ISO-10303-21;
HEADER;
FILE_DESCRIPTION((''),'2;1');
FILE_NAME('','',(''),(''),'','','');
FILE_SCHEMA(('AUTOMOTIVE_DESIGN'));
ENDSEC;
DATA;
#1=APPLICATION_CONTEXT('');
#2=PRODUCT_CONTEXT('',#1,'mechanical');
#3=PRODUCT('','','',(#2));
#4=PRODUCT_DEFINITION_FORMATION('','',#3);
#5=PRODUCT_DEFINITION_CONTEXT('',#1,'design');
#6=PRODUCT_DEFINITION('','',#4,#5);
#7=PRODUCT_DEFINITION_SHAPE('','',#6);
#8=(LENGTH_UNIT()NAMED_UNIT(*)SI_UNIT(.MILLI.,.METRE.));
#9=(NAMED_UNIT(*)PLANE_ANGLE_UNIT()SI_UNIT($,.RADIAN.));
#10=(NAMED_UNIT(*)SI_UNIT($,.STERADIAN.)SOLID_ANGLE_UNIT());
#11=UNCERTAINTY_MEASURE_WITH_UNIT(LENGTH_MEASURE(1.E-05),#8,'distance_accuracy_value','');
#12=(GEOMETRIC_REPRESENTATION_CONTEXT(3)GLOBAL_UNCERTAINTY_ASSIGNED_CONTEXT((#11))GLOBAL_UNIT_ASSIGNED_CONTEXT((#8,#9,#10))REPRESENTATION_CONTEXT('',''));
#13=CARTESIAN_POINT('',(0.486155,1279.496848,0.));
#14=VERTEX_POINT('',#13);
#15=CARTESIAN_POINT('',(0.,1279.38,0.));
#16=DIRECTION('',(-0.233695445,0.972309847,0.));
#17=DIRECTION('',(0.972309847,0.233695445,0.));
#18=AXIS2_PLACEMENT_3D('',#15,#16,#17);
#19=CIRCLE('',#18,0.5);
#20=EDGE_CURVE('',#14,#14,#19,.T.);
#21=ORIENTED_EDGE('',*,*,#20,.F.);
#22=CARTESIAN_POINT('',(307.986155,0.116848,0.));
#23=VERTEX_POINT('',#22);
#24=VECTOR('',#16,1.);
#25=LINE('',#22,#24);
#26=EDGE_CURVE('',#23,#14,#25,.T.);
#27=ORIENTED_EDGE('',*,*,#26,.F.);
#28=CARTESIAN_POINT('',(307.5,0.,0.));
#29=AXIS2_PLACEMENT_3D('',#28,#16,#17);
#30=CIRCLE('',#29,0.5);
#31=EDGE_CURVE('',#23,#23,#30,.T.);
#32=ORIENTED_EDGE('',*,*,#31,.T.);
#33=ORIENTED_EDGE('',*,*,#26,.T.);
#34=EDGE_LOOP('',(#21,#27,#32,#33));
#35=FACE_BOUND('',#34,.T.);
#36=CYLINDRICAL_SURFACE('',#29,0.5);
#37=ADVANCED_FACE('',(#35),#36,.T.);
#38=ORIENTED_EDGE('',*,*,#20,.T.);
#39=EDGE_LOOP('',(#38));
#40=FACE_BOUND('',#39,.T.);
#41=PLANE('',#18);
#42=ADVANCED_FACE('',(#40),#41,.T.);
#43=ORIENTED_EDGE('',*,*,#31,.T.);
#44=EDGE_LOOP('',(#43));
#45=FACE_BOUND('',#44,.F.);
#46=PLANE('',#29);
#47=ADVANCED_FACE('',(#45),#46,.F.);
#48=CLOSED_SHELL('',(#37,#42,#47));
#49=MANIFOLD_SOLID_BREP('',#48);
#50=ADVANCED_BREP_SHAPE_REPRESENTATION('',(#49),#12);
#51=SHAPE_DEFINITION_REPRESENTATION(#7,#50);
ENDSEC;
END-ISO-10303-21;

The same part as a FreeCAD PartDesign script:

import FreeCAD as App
import Part
import Sketcher
from FreeCAD import Vector

doc = App.newDocument("Part")
body = doc.addObject("PartDesign::Body", "Body")

sketch1 = body.newObject("Sketcher::SketchObject", "Sketch")
sketch1.Placement = App.Placement(Vector(307.5, 0, 0), App.Rotation(Vector(0.972309847, 0.233695445, 0), Vector(0, 0, -1), Vector(-0.233695445, 0.972309847, 0), "ZXY"))
sketch1.addGeometry(Part.Circle(Vector(0, 0, 0), Vector(0, 0, 1), 0.5), False)
sketch1.addConstraint([
    Sketcher.Constraint("Coincident", 0, 3, -1, 1),
    Sketcher.Constraint("Diameter", 0, 1.0),
])

sketch2 = body.newObject("Sketcher::SketchObject", "Sketch001")
sketch2.Placement = App.Placement(Vector(290.70633, 69.871498, 0), App.Rotation(Vector(-0.233695445, 0.972309847, 0), Vector(0, 0, 1), Vector(0.972309847, 0.233695445, 0), "ZXY"))
sketch2.addGeometry(Part.LineSegment(Vector(-72, 0, 0), Vector(1244, 0, 0)), False)
sketch2.addConstraint([
    Sketcher.Constraint("Horizontal", 0),
    Sketcher.Constraint("PointOnObject", 0, 1, -1),
    Sketcher.Constraint("DistanceX", 0, 1, 0, 2, 1315.815121),
    Sketcher.Constraint("DistanceX", 0, 1, -1, 1, 71.861349),
])
doc.recompute()

additivepipe = body.newObject("PartDesign::AdditivePipe", "AdditivePipe")
additivepipe.Profile = sketch1
additivepipe.Spine = (sketch2, ["Edge1"])

doc.recompute()
